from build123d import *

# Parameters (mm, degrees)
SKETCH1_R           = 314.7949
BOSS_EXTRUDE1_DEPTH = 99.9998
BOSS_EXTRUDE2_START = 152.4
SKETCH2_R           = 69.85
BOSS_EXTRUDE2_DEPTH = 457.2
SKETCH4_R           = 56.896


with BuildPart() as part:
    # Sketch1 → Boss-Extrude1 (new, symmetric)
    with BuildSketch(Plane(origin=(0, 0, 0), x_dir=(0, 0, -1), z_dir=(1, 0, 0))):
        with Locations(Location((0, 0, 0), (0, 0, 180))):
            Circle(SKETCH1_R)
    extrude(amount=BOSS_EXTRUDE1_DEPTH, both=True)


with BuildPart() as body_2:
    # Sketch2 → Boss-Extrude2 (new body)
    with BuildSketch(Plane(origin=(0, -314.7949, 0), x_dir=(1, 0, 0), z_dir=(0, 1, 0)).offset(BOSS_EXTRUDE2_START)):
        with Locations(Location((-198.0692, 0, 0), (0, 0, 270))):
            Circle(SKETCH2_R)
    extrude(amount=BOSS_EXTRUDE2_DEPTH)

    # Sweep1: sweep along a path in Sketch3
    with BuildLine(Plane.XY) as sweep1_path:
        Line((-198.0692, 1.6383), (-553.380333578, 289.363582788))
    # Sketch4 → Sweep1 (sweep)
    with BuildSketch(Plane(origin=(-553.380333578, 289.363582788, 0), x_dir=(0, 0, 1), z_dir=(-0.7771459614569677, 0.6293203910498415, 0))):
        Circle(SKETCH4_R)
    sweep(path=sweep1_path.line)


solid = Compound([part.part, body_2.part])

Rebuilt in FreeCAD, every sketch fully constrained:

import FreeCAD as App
import Part
import Sketcher
Q = App.Units.Quantity

doc = App.newDocument("Part")
params = doc.addObject("Spreadsheet::Sheet", "Params")
for row, (alias, value) in enumerate([
    ("sketch1_diameter", "24.787 in"),
    ("pad1_length", "7.874 in"),
    ("sketch2_diameter", "5.5 in"),
    ("pad2_length", "18 in"),
    ("sketch3_diameter", "4.48 in"),
    ("sketch4_width", "18 in"),
], start=1):
    params.set(f"A{row}", alias)
    params.set(f"B{row}", "=" + value)
    params.setAlias(f"B{row}", alias)

body = doc.addObject("PartDesign::Body", "Body")

sketch1 = body.newObject("Sketcher::SketchObject", "Sketch")
sketch1.AttachmentSupport = (doc.getObject("YZ_Plane"), [""])
sketch1.MapMode = "FlatFace"
sketch1.addGeometry(Part.Circle(App.Vector(0, 0, 0), App.Vector(0, 0, 1), 315), False)
sketch1.addConstraint([
    Sketcher.Constraint("Coincident", 0, 3, -1, 1),
    Sketcher.Constraint("Diameter", 0, Q("24.787 in")),
])
sketch1.setExpression("Constraints[1]", "Params.sketch1_diameter")
pad1 = body.newObject("PartDesign::Pad", "Pad")
pad1.Profile = sketch1
pad1.setExpression("Length", "Params.pad1_length")
pad1.Midplane = True
body2 = doc.addObject("PartDesign::Body", "Body001")

sketch2 = body2.newObject("Sketcher::SketchObject", "Sketch001")
sketch2.AttachmentSupport = (doc.getObject("XZ_Plane001"), [""])
sketch2.MapMode = "FlatFace"
sketch2.AttachmentOffset = App.Placement(App.Vector(0, 0, 6.3935 * 25.4), App.Rotation())
sketch2.addGeometry(Part.Circle(App.Vector(-198, 0, 0), App.Vector(0, 0, 1), 70), False)
sketch2.addConstraint([
    Sketcher.Constraint("PointOnObject", 0, 3, -1),
    Sketcher.Constraint("Diameter", 0, Q("5.5 in")),
    Sketcher.Constraint("DistanceX", 0, 3, -1, 1, Q("7.798 in")),
])
sketch2.setExpression("Constraints[1]", "Params.sketch2_diameter")
pad2 = body2.newObject("PartDesign::Pad", "Pad001")
pad2.Profile = sketch2
pad2.setExpression("Length", "Params.pad2_length")
pad2.Reversed = True

sketch3 = body2.newObject("Sketcher::SketchObject", "Sketch002")
sketch3.Placement = App.Placement(App.Vector(-553.380334, 289.363583, 0), App.Rotation(App.Vector(0, 0, 1), App.Vector(0.629320391, 0.777145961, 0), App.Vector(-0.777145961, 0.629320391, 0), "ZXY"))
sketch3.addGeometry(Part.Circle(App.Vector(0, 0, 0), App.Vector(0, 0, 1), 57), False)
sketch3.addConstraint([
    Sketcher.Constraint("Coincident", 0, 3, -1, 1),
    Sketcher.Constraint("Diameter", 0, Q("4.48 in")),
])
sketch3.setExpression("Constraints[1]", "Params.sketch3_diameter")

sketch4 = body2.newObject("Sketcher::SketchObject", "Sketch003")
sketch4.Placement = App.Placement(App.Vector(-77.642899, -95.880996, 0), App.Rotation(App.Vector(-0.777145961, 0.629320391, 0), App.Vector(0, 0, 0.999999999), App.Vector(0.629320391, 0.777145961, 0), "ZXY"))
sketch4.addGeometry(Part.LineSegment(App.Vector(155, 0, 0), App.Vector(612, 0, 0)), False)
sketch4.addConstraint([
    Sketcher.Constraint("Horizontal", 0),
    Sketcher.Constraint("PointOnObject", 0, 1, -1),
    Sketcher.Constraint("DistanceX", 0, 1, 0, 2, Q("18 in")),
    Sketcher.Constraint("DistanceX", -1, 1, 0, 1, Q("154.959694 mm")),
])
sketch4.setExpression("Constraints[2]", "Params.sketch4_width")
doc.recompute()

additivepipe = body2.newObject("PartDesign::AdditivePipe", "AdditivePipe")
additivepipe.Profile = sketch3
additivepipe.Spine = (sketch4, ["Edge1"])

doc.recompute()
